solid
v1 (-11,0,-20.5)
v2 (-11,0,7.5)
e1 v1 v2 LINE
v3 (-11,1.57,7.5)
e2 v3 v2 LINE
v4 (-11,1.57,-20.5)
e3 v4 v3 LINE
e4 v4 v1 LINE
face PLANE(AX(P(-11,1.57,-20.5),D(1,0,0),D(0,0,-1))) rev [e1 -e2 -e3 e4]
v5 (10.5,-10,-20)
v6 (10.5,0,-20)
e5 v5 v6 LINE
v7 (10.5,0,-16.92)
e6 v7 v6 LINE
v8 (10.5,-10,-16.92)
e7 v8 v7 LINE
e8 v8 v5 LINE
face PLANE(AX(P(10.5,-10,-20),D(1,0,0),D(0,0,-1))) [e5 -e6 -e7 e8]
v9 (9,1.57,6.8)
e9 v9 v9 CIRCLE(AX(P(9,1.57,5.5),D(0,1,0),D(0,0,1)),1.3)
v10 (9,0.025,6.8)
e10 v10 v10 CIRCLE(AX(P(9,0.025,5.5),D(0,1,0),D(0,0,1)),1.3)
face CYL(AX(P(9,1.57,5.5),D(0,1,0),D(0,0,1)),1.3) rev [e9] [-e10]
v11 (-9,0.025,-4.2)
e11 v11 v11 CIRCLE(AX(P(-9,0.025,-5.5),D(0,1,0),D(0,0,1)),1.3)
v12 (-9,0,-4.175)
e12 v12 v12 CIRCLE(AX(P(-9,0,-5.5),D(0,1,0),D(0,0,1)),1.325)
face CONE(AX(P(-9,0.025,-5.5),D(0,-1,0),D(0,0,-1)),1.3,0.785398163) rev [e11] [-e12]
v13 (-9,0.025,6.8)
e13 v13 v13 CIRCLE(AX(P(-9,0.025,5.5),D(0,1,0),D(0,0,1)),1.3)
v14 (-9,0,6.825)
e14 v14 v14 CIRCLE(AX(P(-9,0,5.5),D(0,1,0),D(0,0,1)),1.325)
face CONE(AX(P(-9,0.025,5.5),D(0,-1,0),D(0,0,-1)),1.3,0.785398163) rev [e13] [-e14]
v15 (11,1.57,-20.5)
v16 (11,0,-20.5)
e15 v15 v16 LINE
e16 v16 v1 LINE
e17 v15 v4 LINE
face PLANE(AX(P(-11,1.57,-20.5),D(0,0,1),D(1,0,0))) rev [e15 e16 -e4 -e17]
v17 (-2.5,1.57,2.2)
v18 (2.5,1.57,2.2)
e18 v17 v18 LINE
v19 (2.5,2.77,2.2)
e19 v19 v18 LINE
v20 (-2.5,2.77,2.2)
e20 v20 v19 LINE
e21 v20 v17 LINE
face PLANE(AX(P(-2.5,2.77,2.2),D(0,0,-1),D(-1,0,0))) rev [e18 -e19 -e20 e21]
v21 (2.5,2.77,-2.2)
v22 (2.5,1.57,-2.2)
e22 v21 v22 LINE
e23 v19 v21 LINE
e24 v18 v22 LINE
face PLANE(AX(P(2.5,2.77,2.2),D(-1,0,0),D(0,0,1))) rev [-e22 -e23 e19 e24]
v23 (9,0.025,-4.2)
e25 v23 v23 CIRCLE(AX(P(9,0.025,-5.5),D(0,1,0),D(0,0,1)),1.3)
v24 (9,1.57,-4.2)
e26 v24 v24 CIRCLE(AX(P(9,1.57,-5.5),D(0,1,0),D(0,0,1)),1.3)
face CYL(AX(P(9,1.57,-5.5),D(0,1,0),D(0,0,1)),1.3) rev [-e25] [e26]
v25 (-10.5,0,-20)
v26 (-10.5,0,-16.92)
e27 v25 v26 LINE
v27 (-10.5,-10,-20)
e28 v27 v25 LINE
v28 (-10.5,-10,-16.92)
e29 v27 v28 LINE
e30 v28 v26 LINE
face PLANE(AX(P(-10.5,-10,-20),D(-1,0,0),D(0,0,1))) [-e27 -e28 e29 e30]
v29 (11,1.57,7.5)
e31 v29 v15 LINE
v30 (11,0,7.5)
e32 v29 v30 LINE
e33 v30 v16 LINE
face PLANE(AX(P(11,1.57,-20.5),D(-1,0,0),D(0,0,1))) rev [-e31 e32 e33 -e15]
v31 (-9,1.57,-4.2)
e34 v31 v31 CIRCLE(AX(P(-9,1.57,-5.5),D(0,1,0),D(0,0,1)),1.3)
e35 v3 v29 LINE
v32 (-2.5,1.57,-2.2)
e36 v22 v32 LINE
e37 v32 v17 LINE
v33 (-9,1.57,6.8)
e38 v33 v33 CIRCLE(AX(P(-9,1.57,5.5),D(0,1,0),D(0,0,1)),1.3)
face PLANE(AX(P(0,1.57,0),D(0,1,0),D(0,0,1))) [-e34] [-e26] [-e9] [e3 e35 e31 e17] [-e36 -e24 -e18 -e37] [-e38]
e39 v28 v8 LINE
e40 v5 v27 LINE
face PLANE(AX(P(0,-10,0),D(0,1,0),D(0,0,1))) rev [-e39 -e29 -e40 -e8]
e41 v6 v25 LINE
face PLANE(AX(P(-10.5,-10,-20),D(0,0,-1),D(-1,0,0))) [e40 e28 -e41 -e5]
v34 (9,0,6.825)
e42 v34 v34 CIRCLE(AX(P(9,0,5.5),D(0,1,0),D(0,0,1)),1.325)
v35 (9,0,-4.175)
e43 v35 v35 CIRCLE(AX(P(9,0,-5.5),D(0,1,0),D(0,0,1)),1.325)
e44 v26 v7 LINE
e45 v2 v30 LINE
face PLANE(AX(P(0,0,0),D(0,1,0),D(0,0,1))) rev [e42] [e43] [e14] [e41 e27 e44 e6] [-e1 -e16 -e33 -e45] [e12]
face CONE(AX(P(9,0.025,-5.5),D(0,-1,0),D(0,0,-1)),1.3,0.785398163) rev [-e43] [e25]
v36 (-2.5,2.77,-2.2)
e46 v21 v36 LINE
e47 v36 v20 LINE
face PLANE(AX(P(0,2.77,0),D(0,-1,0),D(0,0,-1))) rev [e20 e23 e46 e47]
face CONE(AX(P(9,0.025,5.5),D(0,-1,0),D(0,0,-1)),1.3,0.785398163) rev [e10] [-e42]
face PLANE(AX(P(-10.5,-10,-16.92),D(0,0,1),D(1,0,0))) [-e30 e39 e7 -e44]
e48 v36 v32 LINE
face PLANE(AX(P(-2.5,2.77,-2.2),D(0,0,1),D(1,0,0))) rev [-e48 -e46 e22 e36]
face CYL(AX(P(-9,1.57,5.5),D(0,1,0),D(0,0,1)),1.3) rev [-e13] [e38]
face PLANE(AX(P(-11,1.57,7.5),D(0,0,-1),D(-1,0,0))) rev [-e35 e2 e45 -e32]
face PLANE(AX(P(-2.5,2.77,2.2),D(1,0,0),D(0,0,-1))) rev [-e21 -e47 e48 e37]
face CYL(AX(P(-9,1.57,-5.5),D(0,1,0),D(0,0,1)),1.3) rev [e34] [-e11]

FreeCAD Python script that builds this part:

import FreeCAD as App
import Part
import Sketcher
Q = App.Units.Quantity

doc = App.newDocument("Part")
body = doc.addObject("PartDesign::Body", "Body")

# Sketch on XZ plane
sketch1 = body.newObject("Sketcher::SketchObject", "Sketch")
sketch1.AttachmentSupport = (doc.getObject("XZ_Plane"), [""])
sketch1.MapMode = "FlatFace"
sketch1.addGeometry([
    Part.LineSegment(App.Vector(-11, -20, 0), App.Vector(-11, 8, 0)),
    Part.LineSegment(App.Vector(-11, 8, 0), App.Vector(11, 8, 0)),
    Part.LineSegment(App.Vector(11, 8, 0), App.Vector(11, -20, 0)),
    Part.LineSegment(App.Vector(11, -20, 0), App.Vector(-11, -20, 0)),
], False)
sketch1.addConstraint([
    Sketcher.Constraint("Coincident", 0, 2, 1, 1),
    Sketcher.Constraint("Coincident", 1, 2, 2, 1),
    Sketcher.Constraint("Coincident", 2, 2, 3, 1),
    Sketcher.Constraint("Coincident", 3, 2, 0, 1),
    Sketcher.Constraint("Vertical", 0),
    Sketcher.Constraint("Horizontal", 1),
    Sketcher.Constraint("Vertical", 2),
    Sketcher.Constraint("Horizontal", 3),
    Sketcher.Constraint("DistanceX", 1, 1, 1, 2, 22.0),
    Sketcher.Constraint("DistanceY", 0, 1, 0, 2, 28.0),
    Sketcher.Constraint("DistanceX", 0, 2, -1, 1, 11.0),
    Sketcher.Constraint("DistanceY", -1, 1, 0, 2, 7.5),
])
pad1 = body.newObject("PartDesign::Pad", "Pad")
pad1.Profile = sketch1
pad1.Length = 1.57
pad1.Reversed = True

# Sketch on YZ plane
sketch2 = body.newObject("Sketcher::SketchObject", "Sketch001")
sketch2.AttachmentSupport = (doc.getObject("YZ_Plane"), [""])
sketch2.MapMode = "FlatFace"
sketch2.AttachmentOffset = App.Placement(App.Vector(0, 0, -9), App.Rotation())
sketch2.addGeometry([
    Part.LineSegment(App.Vector(0, -5.5, 0), App.Vector(1.57, -5.5, 0)),  # 0
    Part.LineSegment(App.Vector(1.57, -5.5, 0), App.Vector(1.57, -4.2, 0)),  # 1
    Part.LineSegment(App.Vector(1.57, -4.2, 0), App.Vector(0.025, -4.2, 0)),  # 2
    Part.LineSegment(App.Vector(0.025, -4.2, 0), App.Vector(0, -4.175, 0)),  # 3
    Part.LineSegment(App.Vector(0, -4.175, 0), App.Vector(0, -5.5, 0)),  # 4
], False)
sketch2.addGeometry(Part.LineSegment(App.Vector(1.57, -5.5, 0), App.Vector(0, -5.5, 0)), True)  # axis
sketch2.addConstraint([
    Sketcher.Constraint("Coincident", 0, 2, 1, 1),
    Sketcher.Constraint("Coincident", 1, 2, 2, 1),
    Sketcher.Constraint("Coincident", 2, 2, 3, 1),
    Sketcher.Constraint("Coincident", 3, 2, 4, 1),
    Sketcher.Constraint("Coincident", 4, 2, 0, 1),
    Sketcher.Constraint("Horizontal", 0),
    Sketcher.Constraint("Vertical", 1),
    Sketcher.Constraint("Horizontal", 2),
    Sketcher.Constraint("Vertical", 4),
    Sketcher.Constraint("Horizontal", 5),
    Sketcher.Constraint("Coincident", 5, 1, 0, 2),
    Sketcher.Constraint("PointOnObject", 3, 2, -2),
    Sketcher.Constraint("PointOnObject", 5, 2, -2),
    Sketcher.Constraint("Angle", 3, Q("135 deg")),
    Sketcher.Constraint("DistanceY", 1, 1, 1, 2, 1.3),
    Sketcher.Constraint("DistanceX", 0, 1, 0, 2, 1.57),
    Sketcher.Constraint("DistanceY", 0, 2, -1, 1, 5.5),
    Sketcher.Constraint("DistanceX", 2, 2, 2, 1, 1.545),
])
groove = body.newObject("PartDesign::Groove", "Groove")
groove.Profile = sketch2
groove.ReferenceAxis = (sketch2, ["Axis0"])
groove.Angle = 360
doc.recompute()

linearpattern = body.newObject("PartDesign::LinearPattern", "LinearPattern")
linearpattern.Originals = [groove]
linearpattern.Direction = (doc.getObject("Z_Axis"), [""])
linearpattern.Mode = "offset"
linearpattern.Offset = 11
linearpattern.Occurrences = 2
body.Tip = linearpattern
doc.recompute()

datumline = body.newObject("PartDesign::Line", "DatumLine")
datumline.Placement = App.Placement(App.Vector(0, 0, 0), App.Rotation(App.Vector(0, 0, 1), App.Vector(0.853281834, 0, 0.521450009)))
linearpattern2 = body.newObject("PartDesign::LinearPattern", "LinearPattern001")
linearpattern2.Originals = [groove]
linearpattern2.Direction = (datumline, [""])
linearpattern2.Mode = "offset"
linearpattern2.Offset = 21.095023
linearpattern2.Occurrences = 2
body.Tip = linearpattern2
doc.recompute()

linearpattern3 = body.newObject("PartDesign::LinearPattern", "LinearPattern002")
linearpattern3.Originals = [groove]
linearpattern3.Direction = (doc.getObject("X_Axis"), [""])
linearpattern3.Mode = "offset"
linearpattern3.Offset = 18
linearpattern3.Occurrences = 2
body.Tip = linearpattern3

# Sketch on XZ plane
sketch3 = body.newObject("Sketcher::SketchObject", "Sketch002")
sketch3.AttachmentSupport = (doc.getObject("XZ_Plane"), [""])
sketch3.MapMode = "FlatFace"
sketch3.AttachmentOffset = App.Placement(App.Vector(0, 0, -1.57), App.Rotation())
sketch3.addGeometry([
    Part.LineSegment(App.Vector(-2.5, -2.2, 0), App.Vector(-2.5, 2.2, 0)),
    Part.LineSegment(App.Vector(-2.5, 2.2, 0), App.Vector(2.5, 2.2, 0)),
    Part.LineSegment(App.Vector(2.5, 2.2, 0), App.Vector(2.5, -2.2, 0)),
    Part.LineSegment(App.Vector(2.5, -2.2, 0), App.Vector(-2.5, -2.2, 0)),
], False)
sketch3.addConstraint([
    Sketcher.Constraint("Coincident", 0, 2, 1, 1),
    Sketcher.Constraint("Coincident", 1, 2, 2, 1),
    Sketcher.Constraint("Coincident", 2, 2, 3, 1),
    Sketcher.Constraint("Coincident", 3, 2, 0, 1),
    Sketcher.Constraint("Vertical", 0),
    Sketcher.Constraint("Horizontal", 1),
    Sketcher.Constraint("Vertical", 2),
    Sketcher.Constraint("Horizontal", 3),
    Sketcher.Constraint("Symmetric", 0, 2, 2, 2, -1, 1),
    Sketcher.Constraint("DistanceX", 1, 1, 1, 2, 5.0),
    Sketcher.Constraint("DistanceY", 0, 1, 0, 2, 4.4),
])
pad2 = body.newObject("PartDesign::Pad", "Pad001")
pad2.Profile = sketch3
pad2.Length = 1.2
pad2.Reversed = True

# Sketch on XZ plane
sketch4 = body.newObject("Sketcher::SketchObject", "Sketch003")
sketch4.AttachmentSupport = (doc.getObject("XZ_Plane"), [""])
sketch4.MapMode = "FlatFace"
sketch4.addGeometry([
    Part.LineSegment(App.Vector(-10.5, -20, 0), App.Vector(-10.5, -16.9, 0)),
    Part.LineSegment(App.Vector(-10.5, -16.9, 0), App.Vector(10.5, -16.9, 0)),
    Part.LineSegment(App.Vector(10.5, -16.9, 0), App.Vector(10.5, -20, 0)),
    Part.LineSegment(App.Vector(10.5, -20, 0), App.Vector(-10.5, -20, 0)),
], False)
sketch4.addConstraint([
    Sketcher.Constraint("Coincident", 0, 2, 1, 1),
    Sketcher.Constraint("Coincident", 1, 2, 2, 1),
    Sketcher.Constraint("Coincident", 2, 2, 3, 1),
    Sketcher.Constraint("Coincident", 3, 2, 0, 1),
    Sketcher.Constraint("Vertical", 0),
    Sketcher.Constraint("Horizontal", 1),
    Sketcher.Constraint("Vertical", 2),
    Sketcher.Constraint("Horizontal", 3),
    Sketcher.Constraint("DistanceX", 1, 1, 1, 2, 21.0),
    Sketcher.Constraint("DistanceY", 2, 2, -1, 1, 20.0),
    Sketcher.Constraint("DistanceY", 0, 1, 0, 2, 3.08),
    Sketcher.Constraint("DistanceX", 0, 2, -1, 1, 10.5),
])
pad3 = body.newObject("PartDesign::Pad", "Pad002")
pad3.Profile = sketch4
pad3.Length = 10

doc.recompute()
